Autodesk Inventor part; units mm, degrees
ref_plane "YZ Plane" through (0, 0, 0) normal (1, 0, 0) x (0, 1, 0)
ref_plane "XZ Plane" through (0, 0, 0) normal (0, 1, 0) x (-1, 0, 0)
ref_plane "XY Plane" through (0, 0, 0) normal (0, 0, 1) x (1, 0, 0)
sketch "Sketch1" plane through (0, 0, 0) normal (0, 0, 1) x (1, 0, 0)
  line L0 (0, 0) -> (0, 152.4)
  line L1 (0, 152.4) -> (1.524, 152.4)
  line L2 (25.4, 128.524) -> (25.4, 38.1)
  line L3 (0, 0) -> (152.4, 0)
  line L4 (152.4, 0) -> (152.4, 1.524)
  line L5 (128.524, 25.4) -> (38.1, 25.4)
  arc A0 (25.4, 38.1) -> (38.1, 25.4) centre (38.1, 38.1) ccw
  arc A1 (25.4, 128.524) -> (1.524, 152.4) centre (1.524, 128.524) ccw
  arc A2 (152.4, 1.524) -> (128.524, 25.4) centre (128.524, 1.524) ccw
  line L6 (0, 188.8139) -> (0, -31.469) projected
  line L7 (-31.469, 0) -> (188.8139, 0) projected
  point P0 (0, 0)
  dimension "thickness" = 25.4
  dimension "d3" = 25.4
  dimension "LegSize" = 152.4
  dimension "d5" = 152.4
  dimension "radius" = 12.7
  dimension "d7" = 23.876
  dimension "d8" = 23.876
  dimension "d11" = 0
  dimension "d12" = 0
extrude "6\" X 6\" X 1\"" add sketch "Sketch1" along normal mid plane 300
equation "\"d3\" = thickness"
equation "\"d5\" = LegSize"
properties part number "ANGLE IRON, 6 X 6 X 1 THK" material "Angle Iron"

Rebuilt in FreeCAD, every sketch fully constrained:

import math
import FreeCAD as App
import Part
import Sketcher

V = App.Vector
Q = App.Units.Quantity

doc = App.newDocument("Part")
body = doc.addObject("PartDesign::Body", "Body")

# Sketch on XY plane
sketch1 = body.newObject("Sketcher::SketchObject", "Sketch")
sketch1.AttachmentSupport = (doc.getObject("XY_Plane"), [""])
sketch1.MapMode = "FlatFace"
sketch1.addGeometry([
    Part.LineSegment(V(0, 152.4, 0), V(0, 0, 0)),  # 0
    Part.LineSegment(V(0, 0, 0), V(152.4, 0, 0)),  # 1
    Part.LineSegment(V(152.4, 0, 0), V(152.4, 1.5, 0)),  # 2
    Part.ArcOfCircle(Part.Circle(V(128.5, 1.5, 0), V(0, 0, 1), 23.9), math.radians(0), math.radians(90)),  # 3
    Part.LineSegment(V(128.5, 25.4, 0), V(38.1, 25.4, 0)),  # 4
    Part.ArcOfCircle(Part.Circle(V(38.1, 38.1, 0), V(0, 0, 1), 12.7), math.radians(180), math.radians(270)),  # 5
    Part.LineSegment(V(25.4, 38.1, 0), V(25.4, 128.5, 0)),  # 6
    Part.ArcOfCircle(Part.Circle(V(1.5, 128.5, 0), V(0, 0, 1), 23.9), math.radians(0), math.radians(90)),  # 7
    Part.LineSegment(V(1.5, 152.4, 0), V(0, 152.4, 0)),  # 8
], False)
sketch1.addConstraint([
    Sketcher.Constraint("Coincident", 0, 2, 1, 1),
    Sketcher.Constraint("Coincident", 1, 2, 2, 1),
    Sketcher.Constraint("Tangent", 2, 2, 3, 1),
    Sketcher.Constraint("Tangent", 3, 2, 4, 1),
    Sketcher.Constraint("Tangent", 4, 2, 5, 2),
    Sketcher.Constraint("Tangent", 5, 1, 6, 1),
    Sketcher.Constraint("Tangent", 6, 2, 7, 1),
    Sketcher.Constraint("Tangent", 7, 2, 8, 1),
    Sketcher.Constraint("Coincident", 8, 2, 0, 1),
    Sketcher.Constraint("Vertical", 0),
    Sketcher.Constraint("Horizontal", 1),
    Sketcher.Constraint("Vertical", 2),
    Sketcher.Constraint("Horizontal", 4),
    Sketcher.Constraint("Vertical", 6),
    Sketcher.Constraint("Horizontal", 8),
    Sketcher.Constraint("Coincident", 0, 2, -1, 1),
    Sketcher.Constraint("Equal", 3, 7),
    Sketcher.Constraint("Equal", 1, 0),
    Sketcher.Constraint("Equal", 8, 2),
    Sketcher.Constraint("Radius", 5, Q("0.5 in")),
    Sketcher.Constraint("DistanceX", 1, 1, 1, 2, Q("6 in")),
    Sketcher.Constraint("Radius", 3, Q("0.94 in")),
    Sketcher.Constraint("DistanceY", -1, 1, 3, 2, Q("1 in")),
])
pad1 = body.newObject("PartDesign::Pad", "Pad")
pad1.Profile = sketch1
pad1.Length = 300
pad1.Midplane = True

doc.recompute()
